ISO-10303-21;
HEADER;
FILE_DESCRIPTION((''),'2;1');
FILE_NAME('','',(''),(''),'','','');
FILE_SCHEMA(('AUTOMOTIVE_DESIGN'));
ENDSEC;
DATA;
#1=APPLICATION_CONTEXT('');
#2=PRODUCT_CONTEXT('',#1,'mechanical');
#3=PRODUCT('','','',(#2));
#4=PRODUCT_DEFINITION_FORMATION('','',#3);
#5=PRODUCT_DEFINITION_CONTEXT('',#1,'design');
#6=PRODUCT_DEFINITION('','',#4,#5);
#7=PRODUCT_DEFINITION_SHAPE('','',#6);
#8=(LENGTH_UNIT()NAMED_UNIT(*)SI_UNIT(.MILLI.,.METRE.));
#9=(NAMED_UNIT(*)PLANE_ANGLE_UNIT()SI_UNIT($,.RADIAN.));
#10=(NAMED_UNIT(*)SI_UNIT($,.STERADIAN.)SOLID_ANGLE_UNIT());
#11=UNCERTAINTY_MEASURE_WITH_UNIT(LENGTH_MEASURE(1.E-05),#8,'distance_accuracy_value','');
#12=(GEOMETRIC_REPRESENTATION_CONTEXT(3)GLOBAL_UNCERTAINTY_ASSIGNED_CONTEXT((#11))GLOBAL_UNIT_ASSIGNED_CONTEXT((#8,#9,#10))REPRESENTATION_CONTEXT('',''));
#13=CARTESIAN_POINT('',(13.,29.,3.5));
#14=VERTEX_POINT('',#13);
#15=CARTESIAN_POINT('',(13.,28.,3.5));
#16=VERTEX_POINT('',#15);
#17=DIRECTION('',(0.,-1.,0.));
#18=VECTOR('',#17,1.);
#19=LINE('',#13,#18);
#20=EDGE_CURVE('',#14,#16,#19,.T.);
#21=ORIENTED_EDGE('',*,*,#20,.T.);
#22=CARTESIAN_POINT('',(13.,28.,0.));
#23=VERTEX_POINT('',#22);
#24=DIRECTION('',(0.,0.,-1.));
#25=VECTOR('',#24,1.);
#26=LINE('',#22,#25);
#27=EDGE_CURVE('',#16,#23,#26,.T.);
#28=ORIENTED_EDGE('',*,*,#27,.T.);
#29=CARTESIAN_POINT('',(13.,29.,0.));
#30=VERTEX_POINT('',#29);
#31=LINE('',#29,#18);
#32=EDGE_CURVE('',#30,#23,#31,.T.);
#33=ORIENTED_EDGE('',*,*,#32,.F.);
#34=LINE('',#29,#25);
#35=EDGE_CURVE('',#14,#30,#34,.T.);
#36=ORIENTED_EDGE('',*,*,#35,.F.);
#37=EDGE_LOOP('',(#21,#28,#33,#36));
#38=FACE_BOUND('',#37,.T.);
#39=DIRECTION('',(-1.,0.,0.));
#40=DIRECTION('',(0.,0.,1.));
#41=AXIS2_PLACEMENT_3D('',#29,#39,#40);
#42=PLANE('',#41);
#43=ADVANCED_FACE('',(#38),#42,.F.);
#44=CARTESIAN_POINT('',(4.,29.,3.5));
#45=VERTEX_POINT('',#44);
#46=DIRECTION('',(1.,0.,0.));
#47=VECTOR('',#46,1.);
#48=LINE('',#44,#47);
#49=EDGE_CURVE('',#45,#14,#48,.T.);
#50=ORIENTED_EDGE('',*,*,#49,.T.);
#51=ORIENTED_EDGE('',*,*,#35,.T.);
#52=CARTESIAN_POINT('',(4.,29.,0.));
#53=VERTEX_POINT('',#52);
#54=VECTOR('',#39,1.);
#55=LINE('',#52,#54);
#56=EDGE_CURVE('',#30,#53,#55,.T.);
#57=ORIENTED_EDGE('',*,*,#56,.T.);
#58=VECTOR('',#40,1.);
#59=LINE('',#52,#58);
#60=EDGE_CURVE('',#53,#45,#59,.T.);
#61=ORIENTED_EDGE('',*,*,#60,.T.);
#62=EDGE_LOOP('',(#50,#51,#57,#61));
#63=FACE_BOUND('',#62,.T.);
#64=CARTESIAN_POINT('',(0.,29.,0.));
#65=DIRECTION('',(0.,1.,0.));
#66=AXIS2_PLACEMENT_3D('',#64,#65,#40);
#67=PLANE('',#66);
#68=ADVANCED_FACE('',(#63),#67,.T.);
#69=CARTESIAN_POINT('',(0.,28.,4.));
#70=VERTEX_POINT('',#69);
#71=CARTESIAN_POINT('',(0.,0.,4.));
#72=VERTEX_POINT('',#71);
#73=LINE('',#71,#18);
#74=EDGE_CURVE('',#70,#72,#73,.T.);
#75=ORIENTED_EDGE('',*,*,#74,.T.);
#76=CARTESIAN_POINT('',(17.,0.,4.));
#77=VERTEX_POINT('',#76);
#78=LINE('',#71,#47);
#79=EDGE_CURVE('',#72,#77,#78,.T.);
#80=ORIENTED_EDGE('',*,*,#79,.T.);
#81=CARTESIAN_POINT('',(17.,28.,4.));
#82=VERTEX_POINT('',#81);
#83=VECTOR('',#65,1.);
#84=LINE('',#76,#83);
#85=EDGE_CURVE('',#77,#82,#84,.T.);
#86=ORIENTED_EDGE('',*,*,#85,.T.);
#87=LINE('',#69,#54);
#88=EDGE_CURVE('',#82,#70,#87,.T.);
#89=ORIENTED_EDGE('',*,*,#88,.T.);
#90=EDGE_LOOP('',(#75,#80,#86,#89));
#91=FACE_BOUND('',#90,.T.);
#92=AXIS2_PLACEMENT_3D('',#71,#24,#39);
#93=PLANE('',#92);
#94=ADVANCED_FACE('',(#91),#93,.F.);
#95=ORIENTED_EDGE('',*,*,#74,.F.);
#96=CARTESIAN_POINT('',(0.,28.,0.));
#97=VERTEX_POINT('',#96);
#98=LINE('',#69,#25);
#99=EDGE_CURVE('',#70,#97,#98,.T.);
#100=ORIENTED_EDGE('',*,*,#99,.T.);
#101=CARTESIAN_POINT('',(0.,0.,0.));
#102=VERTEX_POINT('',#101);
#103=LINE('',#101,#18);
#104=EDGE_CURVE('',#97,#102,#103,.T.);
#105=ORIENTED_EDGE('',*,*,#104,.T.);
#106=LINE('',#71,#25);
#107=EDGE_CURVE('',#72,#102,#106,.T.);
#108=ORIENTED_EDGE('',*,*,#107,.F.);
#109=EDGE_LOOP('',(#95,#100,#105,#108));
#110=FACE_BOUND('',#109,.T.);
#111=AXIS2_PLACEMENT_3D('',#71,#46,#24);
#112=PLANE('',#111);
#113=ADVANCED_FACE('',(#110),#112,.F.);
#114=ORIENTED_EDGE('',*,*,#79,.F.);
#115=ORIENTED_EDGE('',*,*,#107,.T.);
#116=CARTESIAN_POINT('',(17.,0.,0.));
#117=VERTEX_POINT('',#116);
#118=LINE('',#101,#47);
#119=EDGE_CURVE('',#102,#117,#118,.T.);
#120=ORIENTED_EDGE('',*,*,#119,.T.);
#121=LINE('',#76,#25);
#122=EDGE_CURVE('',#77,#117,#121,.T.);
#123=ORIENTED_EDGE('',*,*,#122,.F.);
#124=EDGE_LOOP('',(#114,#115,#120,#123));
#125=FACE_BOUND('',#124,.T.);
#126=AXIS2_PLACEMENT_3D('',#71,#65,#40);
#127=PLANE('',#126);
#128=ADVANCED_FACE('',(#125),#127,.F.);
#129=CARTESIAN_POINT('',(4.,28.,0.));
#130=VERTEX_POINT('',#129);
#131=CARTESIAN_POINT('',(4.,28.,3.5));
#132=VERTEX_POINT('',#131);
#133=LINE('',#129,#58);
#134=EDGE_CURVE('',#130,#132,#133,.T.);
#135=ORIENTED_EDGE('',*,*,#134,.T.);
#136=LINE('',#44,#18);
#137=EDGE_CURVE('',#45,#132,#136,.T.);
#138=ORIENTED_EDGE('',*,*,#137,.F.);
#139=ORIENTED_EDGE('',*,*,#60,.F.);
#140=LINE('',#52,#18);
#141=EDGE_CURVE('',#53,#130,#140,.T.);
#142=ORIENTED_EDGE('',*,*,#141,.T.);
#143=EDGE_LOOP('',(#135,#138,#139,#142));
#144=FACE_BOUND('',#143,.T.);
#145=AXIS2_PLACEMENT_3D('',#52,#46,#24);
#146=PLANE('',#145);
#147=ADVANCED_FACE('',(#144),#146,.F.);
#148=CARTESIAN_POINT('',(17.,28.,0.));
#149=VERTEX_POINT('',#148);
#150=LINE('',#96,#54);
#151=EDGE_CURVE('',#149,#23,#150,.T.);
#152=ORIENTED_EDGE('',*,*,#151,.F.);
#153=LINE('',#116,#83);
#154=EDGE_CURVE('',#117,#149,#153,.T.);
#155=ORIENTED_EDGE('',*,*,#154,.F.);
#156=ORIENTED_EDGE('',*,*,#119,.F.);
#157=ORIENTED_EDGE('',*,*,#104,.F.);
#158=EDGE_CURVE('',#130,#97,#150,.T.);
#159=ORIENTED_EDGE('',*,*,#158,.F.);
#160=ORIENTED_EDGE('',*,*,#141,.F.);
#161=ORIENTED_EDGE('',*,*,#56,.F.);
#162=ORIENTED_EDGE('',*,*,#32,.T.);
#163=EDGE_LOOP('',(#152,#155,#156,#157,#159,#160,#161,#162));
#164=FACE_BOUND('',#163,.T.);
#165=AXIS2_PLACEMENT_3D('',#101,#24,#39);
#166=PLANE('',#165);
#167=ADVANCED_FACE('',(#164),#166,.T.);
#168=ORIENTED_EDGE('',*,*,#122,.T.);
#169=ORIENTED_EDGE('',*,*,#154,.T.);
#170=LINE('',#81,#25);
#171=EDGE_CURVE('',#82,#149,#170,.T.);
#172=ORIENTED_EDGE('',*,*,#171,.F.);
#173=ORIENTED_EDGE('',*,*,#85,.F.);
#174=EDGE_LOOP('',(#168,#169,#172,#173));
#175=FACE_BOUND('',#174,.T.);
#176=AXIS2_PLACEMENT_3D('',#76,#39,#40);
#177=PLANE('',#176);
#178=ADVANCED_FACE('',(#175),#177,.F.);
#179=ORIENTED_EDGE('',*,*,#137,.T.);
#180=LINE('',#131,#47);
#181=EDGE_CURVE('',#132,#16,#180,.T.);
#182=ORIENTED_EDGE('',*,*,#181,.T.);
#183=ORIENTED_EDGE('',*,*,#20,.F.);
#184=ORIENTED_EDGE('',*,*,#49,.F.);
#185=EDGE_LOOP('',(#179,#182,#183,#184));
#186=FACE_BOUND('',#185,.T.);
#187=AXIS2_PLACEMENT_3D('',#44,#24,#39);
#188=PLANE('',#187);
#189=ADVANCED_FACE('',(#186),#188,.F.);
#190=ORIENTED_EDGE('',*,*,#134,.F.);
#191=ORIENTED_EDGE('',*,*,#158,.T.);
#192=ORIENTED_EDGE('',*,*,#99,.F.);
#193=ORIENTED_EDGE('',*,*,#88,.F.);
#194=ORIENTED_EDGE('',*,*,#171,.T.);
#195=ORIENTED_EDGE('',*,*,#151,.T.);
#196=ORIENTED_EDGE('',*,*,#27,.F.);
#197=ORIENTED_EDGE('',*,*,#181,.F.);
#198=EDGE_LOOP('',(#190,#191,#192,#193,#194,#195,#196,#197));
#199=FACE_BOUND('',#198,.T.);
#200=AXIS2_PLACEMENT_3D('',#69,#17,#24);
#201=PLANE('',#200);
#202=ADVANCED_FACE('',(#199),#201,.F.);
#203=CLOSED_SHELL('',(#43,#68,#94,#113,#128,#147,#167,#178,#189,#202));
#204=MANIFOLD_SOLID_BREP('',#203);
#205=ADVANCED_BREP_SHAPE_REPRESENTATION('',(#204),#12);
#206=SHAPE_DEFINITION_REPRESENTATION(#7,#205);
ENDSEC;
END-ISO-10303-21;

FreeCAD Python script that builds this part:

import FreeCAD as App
import Part
import Sketcher
from FreeCAD import Vector
Q = App.Units.Quantity

doc = App.newDocument("Part")
body = doc.addObject("PartDesign::Body", "Body")

sketch1 = body.newObject("Sketcher::SketchObject", "Sketch")
sketch1.AttachmentSupport = (doc.getObject("XY_Plane"), [""])
sketch1.MapMode = "FlatFace"
sketch1.addGeometry([
    Part.LineSegment(Vector(0, 28, 0), Vector(0, 0, 0)),
    Part.LineSegment(Vector(0, 0, 0), Vector(17, 0, 0)),
    Part.LineSegment(Vector(17, 0, 0), Vector(17, 28, 0)),
    Part.LineSegment(Vector(17, 28, 0), Vector(0, 28, 0)),
], False)
sketch1.addConstraint([
    Sketcher.Constraint("Coincident", 0, 2, 1, 1),
    Sketcher.Constraint("Coincident", 1, 2, 2, 1),
    Sketcher.Constraint("Coincident", 2, 2, 3, 1),
    Sketcher.Constraint("Coincident", 3, 2, 0, 1),
    Sketcher.Constraint("Vertical", 0),
    Sketcher.Constraint("Horizontal", 1),
    Sketcher.Constraint("Vertical", 2),
    Sketcher.Constraint("Horizontal", 3),
    Sketcher.Constraint("Coincident", 0, 2, -1, 1),
    Sketcher.Constraint("DistanceX", 1, 1, 1, 2, Q("17 mm")),
    Sketcher.Constraint("DistanceY", 0, 2, 0, 1, Q("28 mm")),
])
pad1 = body.newObject("PartDesign::Pad", "Pad")
pad1.Profile = sketch1
pad1.Length = 4

sketch2 = body.newObject("Sketcher::SketchObject", "Sketch001")
sketch2.AttachmentSupport = (doc.getObject("XZ_Plane"), [""])
sketch2.MapMode = "FlatFace"
sketch2.AttachmentOffset = App.Placement(Vector(0, 0, -28), App.Rotation())
sketch2.addGeometry([
    Part.LineSegment(Vector(4, 0, 0), Vector(4, 3.5, 0)),
    Part.LineSegment(Vector(4, 3.5, 0), Vector(13, 3.5, 0)),
    Part.LineSegment(Vector(13, 3.5, 0), Vector(13, 0, 0)),
    Part.LineSegment(Vector(13, 0, 0), Vector(4, 0, 0)),
], False)
sketch2.addConstraint([
    Sketcher.Constraint("Coincident", 0, 2, 1, 1),
    Sketcher.Constraint("Coincident", 1, 2, 2, 1),
    Sketcher.Constraint("Coincident", 2, 2, 3, 1),
    Sketcher.Constraint("Coincident", 3, 2, 0, 1),
    Sketcher.Constraint("Vertical", 0),
    Sketcher.Constraint("Horizontal", 1),
    Sketcher.Constraint("Vertical", 2),
    Sketcher.Constraint("Horizontal", 3),
    Sketcher.Constraint("PointOnObject", 2, 2, -1),
    Sketcher.Constraint("DistanceX", 1, 1, 1, 2, Q("9 mm")),
    Sketcher.Constraint("DistanceY", 0, 1, 0, 2, Q("3.5 mm")),
    Sketcher.Constraint("DistanceX", -1, 1, 0, 2, Q("4 mm")),
])
pad2 = body.newObject("PartDesign::Pad", "Pad001")
pad2.Profile = sketch2
pad2.Length = 1
pad2.Reversed = True

doc.recompute()
